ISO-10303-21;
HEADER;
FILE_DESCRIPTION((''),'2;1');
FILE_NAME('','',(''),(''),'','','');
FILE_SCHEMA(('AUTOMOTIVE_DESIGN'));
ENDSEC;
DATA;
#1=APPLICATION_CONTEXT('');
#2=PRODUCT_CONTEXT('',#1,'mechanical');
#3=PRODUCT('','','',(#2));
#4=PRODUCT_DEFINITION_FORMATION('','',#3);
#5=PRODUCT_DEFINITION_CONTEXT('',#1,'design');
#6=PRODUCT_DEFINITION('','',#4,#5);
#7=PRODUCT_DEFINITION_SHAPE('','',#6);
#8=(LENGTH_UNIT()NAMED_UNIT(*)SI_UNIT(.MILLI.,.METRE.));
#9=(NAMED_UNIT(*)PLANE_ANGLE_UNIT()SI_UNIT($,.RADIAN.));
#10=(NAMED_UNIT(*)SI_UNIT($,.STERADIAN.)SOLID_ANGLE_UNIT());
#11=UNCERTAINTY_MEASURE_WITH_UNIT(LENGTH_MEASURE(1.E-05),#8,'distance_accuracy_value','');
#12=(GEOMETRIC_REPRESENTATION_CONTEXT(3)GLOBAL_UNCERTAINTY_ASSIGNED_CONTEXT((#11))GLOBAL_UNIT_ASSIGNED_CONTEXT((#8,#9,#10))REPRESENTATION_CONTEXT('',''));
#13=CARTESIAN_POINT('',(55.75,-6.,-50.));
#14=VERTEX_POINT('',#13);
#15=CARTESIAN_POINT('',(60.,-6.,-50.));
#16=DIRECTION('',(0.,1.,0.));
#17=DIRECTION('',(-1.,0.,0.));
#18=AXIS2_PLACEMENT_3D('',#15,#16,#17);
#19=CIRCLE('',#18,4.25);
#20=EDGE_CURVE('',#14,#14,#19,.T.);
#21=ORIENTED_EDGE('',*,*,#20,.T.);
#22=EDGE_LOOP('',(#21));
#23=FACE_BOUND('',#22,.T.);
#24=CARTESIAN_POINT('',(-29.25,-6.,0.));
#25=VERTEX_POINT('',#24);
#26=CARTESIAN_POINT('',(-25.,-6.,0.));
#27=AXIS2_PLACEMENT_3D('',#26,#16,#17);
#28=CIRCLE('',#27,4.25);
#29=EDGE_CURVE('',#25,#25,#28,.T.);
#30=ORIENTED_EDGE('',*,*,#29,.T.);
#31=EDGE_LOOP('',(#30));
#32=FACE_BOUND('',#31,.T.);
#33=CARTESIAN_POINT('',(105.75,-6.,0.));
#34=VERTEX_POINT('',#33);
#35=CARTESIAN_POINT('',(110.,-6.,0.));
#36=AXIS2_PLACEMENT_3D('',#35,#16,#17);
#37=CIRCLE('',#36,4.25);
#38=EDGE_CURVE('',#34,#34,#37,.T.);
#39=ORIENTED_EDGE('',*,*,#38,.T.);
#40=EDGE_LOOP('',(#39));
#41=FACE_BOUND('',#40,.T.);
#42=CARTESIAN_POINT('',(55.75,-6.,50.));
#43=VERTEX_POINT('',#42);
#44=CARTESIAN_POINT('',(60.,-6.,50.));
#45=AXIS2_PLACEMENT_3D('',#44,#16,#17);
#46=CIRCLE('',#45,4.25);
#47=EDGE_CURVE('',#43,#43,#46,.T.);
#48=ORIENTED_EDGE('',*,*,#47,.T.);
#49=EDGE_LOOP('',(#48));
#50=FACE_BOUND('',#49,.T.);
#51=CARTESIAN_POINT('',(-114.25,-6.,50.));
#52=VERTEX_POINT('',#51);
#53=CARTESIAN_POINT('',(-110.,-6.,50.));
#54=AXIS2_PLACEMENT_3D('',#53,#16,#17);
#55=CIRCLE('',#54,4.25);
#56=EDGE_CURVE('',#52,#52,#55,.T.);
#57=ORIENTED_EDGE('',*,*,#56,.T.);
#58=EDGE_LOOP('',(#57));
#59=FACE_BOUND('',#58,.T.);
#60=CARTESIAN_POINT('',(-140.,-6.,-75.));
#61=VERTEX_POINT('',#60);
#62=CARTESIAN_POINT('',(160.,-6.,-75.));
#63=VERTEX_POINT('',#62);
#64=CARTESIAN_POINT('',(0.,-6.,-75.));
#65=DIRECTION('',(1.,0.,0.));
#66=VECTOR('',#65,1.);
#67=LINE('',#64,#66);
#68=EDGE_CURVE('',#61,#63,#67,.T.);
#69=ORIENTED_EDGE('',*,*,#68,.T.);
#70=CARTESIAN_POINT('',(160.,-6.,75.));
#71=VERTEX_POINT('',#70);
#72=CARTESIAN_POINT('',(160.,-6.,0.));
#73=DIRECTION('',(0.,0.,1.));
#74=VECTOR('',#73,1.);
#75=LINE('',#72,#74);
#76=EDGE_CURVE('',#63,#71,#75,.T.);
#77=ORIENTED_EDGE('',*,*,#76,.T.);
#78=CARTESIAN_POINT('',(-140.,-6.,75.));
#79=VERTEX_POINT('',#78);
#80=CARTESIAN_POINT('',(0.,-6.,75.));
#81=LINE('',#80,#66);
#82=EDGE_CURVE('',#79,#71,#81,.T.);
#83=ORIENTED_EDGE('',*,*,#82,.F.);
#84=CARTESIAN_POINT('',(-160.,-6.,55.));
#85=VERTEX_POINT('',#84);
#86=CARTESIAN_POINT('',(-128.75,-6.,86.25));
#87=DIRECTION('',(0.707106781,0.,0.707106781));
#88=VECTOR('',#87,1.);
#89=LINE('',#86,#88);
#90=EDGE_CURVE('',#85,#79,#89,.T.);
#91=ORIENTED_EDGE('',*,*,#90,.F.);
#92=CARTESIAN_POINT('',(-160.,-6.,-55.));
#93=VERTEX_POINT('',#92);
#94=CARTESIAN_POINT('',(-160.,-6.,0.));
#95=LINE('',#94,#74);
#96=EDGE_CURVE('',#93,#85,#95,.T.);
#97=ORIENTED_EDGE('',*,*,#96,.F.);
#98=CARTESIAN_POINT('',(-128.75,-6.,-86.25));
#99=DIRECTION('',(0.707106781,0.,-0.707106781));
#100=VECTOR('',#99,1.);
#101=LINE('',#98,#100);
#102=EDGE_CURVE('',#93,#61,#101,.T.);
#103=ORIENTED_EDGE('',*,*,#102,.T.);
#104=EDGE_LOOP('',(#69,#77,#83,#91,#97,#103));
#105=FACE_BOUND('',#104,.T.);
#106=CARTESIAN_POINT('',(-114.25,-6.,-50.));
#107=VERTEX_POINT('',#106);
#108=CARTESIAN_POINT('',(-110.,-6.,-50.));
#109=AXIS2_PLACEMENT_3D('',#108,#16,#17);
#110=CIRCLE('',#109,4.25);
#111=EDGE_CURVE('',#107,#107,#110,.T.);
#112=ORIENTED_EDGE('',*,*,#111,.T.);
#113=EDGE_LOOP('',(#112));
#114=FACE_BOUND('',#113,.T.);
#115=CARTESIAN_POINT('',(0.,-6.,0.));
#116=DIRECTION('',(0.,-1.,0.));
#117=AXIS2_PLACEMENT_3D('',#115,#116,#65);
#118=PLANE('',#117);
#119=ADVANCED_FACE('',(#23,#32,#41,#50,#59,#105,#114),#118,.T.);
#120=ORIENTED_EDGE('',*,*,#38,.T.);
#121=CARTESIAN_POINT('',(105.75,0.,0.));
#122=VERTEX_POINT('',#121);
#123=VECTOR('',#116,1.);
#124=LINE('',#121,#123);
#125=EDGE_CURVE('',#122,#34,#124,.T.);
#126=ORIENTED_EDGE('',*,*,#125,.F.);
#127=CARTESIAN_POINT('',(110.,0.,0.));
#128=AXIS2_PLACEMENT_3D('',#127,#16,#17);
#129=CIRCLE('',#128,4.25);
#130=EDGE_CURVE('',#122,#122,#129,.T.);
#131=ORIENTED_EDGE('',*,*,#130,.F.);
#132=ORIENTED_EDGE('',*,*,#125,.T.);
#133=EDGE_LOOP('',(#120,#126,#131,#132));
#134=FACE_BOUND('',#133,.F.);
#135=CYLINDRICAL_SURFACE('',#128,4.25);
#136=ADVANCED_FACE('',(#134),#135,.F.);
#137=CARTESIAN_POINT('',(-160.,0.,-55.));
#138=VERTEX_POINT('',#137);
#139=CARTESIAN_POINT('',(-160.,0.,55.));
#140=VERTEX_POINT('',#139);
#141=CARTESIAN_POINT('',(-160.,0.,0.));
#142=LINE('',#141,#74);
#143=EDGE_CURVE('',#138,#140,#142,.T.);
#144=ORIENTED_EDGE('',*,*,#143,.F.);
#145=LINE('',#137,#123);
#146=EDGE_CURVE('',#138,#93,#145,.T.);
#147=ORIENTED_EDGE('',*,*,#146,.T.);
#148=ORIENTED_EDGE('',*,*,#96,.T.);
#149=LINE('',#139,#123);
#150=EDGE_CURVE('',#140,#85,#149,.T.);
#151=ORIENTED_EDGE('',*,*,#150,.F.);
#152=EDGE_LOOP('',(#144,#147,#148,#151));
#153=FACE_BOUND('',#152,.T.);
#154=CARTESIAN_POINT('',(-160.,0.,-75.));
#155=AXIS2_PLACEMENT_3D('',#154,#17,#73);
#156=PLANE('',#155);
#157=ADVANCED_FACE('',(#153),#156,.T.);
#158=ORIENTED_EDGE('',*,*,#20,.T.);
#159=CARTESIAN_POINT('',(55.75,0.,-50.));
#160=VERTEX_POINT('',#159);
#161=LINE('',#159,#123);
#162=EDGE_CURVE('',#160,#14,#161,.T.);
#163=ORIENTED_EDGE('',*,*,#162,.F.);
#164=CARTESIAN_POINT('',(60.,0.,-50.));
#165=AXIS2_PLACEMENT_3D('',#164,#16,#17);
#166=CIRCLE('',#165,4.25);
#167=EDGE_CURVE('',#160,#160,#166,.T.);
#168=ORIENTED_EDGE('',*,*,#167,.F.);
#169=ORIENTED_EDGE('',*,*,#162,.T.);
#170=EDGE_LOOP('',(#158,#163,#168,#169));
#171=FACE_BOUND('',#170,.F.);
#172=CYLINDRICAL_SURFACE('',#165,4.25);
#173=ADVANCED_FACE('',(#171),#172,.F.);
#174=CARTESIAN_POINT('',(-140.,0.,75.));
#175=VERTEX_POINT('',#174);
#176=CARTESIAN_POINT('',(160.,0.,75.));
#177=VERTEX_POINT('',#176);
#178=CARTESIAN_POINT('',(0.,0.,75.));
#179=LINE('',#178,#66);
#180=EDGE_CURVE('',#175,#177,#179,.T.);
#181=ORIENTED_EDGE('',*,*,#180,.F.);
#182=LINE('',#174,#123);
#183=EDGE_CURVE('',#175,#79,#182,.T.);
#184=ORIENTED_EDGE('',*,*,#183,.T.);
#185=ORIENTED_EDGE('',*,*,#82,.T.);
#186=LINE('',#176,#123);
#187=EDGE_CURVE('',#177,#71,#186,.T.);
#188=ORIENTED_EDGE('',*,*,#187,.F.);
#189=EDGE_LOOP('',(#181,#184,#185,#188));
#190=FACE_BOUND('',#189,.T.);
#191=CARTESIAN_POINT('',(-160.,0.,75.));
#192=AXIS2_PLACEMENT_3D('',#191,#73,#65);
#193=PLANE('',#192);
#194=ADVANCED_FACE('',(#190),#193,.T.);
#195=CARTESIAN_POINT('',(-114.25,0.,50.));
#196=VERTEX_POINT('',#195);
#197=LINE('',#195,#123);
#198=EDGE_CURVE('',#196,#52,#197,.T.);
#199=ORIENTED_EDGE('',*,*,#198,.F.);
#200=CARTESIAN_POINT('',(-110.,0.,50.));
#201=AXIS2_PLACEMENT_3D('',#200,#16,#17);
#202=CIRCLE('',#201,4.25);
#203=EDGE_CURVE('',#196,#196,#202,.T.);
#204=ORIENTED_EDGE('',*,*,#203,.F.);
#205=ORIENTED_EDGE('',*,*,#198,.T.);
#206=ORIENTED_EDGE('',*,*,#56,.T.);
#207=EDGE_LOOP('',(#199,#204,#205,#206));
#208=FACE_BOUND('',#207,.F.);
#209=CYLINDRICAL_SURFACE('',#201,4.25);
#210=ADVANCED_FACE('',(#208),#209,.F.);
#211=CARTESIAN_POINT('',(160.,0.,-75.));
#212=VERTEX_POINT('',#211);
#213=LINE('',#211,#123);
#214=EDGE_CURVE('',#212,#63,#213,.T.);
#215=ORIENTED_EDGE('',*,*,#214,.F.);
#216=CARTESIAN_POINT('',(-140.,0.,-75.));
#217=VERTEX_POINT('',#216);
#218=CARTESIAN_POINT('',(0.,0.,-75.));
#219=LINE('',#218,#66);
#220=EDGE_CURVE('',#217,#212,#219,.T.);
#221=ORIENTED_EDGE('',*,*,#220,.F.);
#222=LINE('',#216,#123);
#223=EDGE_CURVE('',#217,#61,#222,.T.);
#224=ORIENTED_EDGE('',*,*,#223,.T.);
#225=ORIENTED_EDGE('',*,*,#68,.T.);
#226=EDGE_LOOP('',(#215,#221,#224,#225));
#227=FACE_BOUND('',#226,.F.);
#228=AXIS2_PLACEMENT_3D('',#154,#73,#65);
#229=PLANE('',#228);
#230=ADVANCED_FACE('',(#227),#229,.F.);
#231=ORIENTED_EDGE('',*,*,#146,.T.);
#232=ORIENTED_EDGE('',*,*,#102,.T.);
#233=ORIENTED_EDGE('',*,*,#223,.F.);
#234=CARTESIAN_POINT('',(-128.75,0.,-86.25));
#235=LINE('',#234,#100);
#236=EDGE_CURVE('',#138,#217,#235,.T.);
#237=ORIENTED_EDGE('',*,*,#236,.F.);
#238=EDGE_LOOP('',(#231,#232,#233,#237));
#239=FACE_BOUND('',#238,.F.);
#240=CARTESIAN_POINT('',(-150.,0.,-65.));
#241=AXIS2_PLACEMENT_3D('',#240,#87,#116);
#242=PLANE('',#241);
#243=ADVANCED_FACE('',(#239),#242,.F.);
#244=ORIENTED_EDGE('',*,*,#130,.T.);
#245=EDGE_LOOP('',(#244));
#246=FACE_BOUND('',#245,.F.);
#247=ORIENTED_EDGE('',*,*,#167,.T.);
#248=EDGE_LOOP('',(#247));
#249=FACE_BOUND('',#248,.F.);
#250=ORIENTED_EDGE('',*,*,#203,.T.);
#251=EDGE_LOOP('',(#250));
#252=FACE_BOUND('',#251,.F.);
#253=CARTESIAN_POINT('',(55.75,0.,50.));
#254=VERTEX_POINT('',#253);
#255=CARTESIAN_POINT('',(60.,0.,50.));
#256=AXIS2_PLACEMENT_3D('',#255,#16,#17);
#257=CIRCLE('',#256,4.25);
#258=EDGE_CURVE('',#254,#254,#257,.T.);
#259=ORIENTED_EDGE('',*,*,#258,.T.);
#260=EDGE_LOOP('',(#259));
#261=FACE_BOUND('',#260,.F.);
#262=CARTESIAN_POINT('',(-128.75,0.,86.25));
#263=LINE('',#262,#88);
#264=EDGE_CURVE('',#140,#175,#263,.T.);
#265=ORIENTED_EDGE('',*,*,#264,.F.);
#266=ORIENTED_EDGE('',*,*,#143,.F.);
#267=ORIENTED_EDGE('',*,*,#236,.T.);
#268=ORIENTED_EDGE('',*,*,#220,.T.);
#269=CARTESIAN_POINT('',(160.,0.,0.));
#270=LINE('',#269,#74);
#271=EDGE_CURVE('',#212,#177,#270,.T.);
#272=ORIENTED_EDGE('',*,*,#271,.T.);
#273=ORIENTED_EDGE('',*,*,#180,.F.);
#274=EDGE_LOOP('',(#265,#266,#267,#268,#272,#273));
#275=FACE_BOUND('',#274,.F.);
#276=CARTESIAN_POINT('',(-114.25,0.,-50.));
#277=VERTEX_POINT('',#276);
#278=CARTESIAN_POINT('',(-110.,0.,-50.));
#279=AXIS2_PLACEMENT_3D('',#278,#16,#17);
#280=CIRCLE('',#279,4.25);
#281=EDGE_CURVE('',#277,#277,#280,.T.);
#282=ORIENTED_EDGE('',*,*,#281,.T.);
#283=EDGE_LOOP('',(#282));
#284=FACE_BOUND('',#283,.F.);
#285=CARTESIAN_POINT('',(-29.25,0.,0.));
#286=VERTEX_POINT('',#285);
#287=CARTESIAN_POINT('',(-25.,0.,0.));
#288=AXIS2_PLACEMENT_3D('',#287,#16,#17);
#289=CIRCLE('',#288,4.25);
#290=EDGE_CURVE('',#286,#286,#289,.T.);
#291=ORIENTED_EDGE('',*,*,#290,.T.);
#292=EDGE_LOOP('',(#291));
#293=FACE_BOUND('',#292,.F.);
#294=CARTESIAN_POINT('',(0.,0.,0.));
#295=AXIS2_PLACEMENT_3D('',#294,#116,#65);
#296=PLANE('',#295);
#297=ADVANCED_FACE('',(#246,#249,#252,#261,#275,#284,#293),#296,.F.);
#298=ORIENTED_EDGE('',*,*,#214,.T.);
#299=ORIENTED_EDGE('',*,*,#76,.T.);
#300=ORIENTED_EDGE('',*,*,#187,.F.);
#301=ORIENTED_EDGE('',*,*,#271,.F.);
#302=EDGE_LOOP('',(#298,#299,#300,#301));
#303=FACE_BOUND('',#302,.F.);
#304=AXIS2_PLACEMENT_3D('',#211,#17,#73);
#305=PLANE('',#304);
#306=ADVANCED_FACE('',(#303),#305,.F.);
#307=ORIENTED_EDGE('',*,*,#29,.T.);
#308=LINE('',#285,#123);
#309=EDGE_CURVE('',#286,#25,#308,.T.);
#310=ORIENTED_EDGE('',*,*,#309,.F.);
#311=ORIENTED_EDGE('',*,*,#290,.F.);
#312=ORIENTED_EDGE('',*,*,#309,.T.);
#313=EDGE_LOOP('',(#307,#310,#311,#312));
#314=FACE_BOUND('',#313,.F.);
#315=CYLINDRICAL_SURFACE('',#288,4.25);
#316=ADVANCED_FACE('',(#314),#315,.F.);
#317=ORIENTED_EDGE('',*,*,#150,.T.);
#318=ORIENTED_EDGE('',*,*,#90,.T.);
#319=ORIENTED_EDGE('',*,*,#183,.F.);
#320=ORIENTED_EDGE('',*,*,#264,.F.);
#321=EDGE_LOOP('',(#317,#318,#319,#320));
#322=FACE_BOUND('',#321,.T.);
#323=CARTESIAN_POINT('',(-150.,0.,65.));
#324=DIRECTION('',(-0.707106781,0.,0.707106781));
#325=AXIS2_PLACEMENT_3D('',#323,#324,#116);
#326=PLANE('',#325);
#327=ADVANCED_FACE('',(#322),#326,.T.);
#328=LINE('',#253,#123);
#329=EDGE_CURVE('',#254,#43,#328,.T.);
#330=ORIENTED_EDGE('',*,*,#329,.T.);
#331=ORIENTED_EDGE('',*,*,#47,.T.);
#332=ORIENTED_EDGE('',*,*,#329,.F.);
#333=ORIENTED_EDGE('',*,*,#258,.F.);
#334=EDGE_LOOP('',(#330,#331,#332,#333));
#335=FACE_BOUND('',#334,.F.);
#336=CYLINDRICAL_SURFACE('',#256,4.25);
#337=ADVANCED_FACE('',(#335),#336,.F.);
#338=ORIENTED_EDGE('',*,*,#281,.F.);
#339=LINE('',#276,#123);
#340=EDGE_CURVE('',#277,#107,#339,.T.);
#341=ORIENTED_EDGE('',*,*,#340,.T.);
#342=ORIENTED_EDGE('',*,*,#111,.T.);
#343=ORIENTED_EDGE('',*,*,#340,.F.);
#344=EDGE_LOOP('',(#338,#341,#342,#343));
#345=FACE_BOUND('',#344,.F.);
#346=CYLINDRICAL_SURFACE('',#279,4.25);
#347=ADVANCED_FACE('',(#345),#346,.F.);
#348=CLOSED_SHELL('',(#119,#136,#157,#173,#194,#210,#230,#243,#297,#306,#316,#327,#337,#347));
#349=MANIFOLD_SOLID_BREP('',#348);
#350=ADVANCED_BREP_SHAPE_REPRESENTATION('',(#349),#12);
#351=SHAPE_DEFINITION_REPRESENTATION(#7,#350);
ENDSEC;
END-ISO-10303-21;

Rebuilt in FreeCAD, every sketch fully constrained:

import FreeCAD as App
import Part
import Sketcher
Q = App.Units.Quantity


def edges_at(feature, points):
    """Names of the edges that pass closest to the given points."""
    edges = feature.Shape.Edges
    near = lambda p: min(range(len(edges)), key=lambda i: edges[i].distToShape(Part.Vertex(*p))[0])
    return sorted({f"Edge{near(p) + 1}" for p in points})

doc = App.newDocument("Part")
body = doc.addObject("PartDesign::Body", "Body")

# Sketch on XZ plane
sketch1 = doc.addObject("Sketcher::SketchObject", "Sketch")
body.addObject(sketch1)
sketch1.AttachmentSupport = (doc.XZ_Plane, [""])
sketch1.MapMode = "FlatFace"
sketch1.addGeometry([
    Part.LineSegment(App.Vector(-160, 75, 0), App.Vector(-160, -75, 0)),
    Part.LineSegment(App.Vector(-160, -75, 0), App.Vector(160, -75, 0)),
    Part.LineSegment(App.Vector(160, -75, 0), App.Vector(160, 75, 0)),
    Part.LineSegment(App.Vector(160, 75, 0), App.Vector(-160, 75, 0)),
], False)
sketch1.addConstraint([
    Sketcher.Constraint("Coincident", 0, 2, 1, 1),
    Sketcher.Constraint("Coincident", 1, 2, 2, 1),
    Sketcher.Constraint("Coincident", 2, 2, 3, 1),
    Sketcher.Constraint("Coincident", 3, 2, 0, 1),
    Sketcher.Constraint("Vertical", 0),
    Sketcher.Constraint("Horizontal", 1),
    Sketcher.Constraint("Vertical", 2),
    Sketcher.Constraint("Horizontal", 3),
    Sketcher.Constraint("Symmetric", 0, 2, 2, 2, -1, 1),
    Sketcher.Constraint("DistanceX", 1, 1, 1, 2, Q("320 mm")),
    Sketcher.Constraint("DistanceY", 0, 2, 0, 1, Q("150 mm")),
])
pad1 = doc.addObject("PartDesign::Pad", "Pad")
body.addObject(pad1)
pad1.Profile = sketch1
pad1.Length = 6

# Sketch on XZ plane
sketch2 = doc.addObject("Sketcher::SketchObject", "Sketch001")
body.addObject(sketch2)
sketch2.AttachmentSupport = (doc.XZ_Plane, [""])
sketch2.MapMode = "FlatFace"
sketch2.addGeometry([
    Part.Circle(App.Vector(60, 50, 0), App.Vector(0, 0, 1), 4.2),  # 0
    Part.Circle(App.Vector(-110, 50, 0), App.Vector(0, 0, 1), 4.2),  # 1
    Part.Circle(App.Vector(-25, 0, 0), App.Vector(0, 0, 1), 4.2),  # 2
    Part.Circle(App.Vector(110, 0, 0), App.Vector(0, 0, 1), 4.2),  # 3
    Part.Circle(App.Vector(-110, -50, 0), App.Vector(0, 0, 1), 4.2),  # 4
    Part.Circle(App.Vector(60, -50, 0), App.Vector(0, 0, 1), 4.2),  # 5
], False)
sketch2.addConstraint([
    Sketcher.Constraint("Equal", 0, 1),
    Sketcher.Constraint("Equal", 1, 2),
    Sketcher.Constraint("Equal", 2, 3),
    Sketcher.Constraint("Equal", 3, 4),
    Sketcher.Constraint("Equal", 4, 5),
    Sketcher.Constraint("Symmetric", 1, 3, 4, 3, -1),
    Sketcher.Constraint("Symmetric", 0, 3, 5, 3, -1),
    Sketcher.Constraint("PointOnObject", 2, 3, -1),
    Sketcher.Constraint("PointOnObject", 3, 3, -1),
    Sketcher.Constraint("Horizontal", 0, 3, 1, 3),
    Sketcher.Constraint("Diameter", 0, Q("8.5 mm")),
    Sketcher.Constraint("DistanceX", -1, 1, 0, 3, Q("60 mm")),
    Sketcher.Constraint("DistanceY", -1, 1, 0, 3, Q("50 mm")),
    Sketcher.Constraint("DistanceX", 1, 3, -1, 1, Q("110 mm")),
    Sketcher.Constraint("DistanceX", 2, 3, -1, 1, Q("25 mm")),
    Sketcher.Constraint("DistanceX", -1, 1, 3, 3, Q("110 mm")),
])
pocket1 = doc.addObject("PartDesign::Pocket", "Pocket")
body.addObject(pocket1)
pocket1.Profile = sketch2
pocket1.Length = 25
pocket1.Reversed = True
doc.recompute()

chamfer = doc.addObject("PartDesign::Chamfer", "Chamfer")
body.addObject(chamfer)
chamfer.Base = (pocket1, edges_at(pocket1, [(-160, -3, 75), (-160, -3, -75)]))
chamfer.Size = 20

doc.recompute()
